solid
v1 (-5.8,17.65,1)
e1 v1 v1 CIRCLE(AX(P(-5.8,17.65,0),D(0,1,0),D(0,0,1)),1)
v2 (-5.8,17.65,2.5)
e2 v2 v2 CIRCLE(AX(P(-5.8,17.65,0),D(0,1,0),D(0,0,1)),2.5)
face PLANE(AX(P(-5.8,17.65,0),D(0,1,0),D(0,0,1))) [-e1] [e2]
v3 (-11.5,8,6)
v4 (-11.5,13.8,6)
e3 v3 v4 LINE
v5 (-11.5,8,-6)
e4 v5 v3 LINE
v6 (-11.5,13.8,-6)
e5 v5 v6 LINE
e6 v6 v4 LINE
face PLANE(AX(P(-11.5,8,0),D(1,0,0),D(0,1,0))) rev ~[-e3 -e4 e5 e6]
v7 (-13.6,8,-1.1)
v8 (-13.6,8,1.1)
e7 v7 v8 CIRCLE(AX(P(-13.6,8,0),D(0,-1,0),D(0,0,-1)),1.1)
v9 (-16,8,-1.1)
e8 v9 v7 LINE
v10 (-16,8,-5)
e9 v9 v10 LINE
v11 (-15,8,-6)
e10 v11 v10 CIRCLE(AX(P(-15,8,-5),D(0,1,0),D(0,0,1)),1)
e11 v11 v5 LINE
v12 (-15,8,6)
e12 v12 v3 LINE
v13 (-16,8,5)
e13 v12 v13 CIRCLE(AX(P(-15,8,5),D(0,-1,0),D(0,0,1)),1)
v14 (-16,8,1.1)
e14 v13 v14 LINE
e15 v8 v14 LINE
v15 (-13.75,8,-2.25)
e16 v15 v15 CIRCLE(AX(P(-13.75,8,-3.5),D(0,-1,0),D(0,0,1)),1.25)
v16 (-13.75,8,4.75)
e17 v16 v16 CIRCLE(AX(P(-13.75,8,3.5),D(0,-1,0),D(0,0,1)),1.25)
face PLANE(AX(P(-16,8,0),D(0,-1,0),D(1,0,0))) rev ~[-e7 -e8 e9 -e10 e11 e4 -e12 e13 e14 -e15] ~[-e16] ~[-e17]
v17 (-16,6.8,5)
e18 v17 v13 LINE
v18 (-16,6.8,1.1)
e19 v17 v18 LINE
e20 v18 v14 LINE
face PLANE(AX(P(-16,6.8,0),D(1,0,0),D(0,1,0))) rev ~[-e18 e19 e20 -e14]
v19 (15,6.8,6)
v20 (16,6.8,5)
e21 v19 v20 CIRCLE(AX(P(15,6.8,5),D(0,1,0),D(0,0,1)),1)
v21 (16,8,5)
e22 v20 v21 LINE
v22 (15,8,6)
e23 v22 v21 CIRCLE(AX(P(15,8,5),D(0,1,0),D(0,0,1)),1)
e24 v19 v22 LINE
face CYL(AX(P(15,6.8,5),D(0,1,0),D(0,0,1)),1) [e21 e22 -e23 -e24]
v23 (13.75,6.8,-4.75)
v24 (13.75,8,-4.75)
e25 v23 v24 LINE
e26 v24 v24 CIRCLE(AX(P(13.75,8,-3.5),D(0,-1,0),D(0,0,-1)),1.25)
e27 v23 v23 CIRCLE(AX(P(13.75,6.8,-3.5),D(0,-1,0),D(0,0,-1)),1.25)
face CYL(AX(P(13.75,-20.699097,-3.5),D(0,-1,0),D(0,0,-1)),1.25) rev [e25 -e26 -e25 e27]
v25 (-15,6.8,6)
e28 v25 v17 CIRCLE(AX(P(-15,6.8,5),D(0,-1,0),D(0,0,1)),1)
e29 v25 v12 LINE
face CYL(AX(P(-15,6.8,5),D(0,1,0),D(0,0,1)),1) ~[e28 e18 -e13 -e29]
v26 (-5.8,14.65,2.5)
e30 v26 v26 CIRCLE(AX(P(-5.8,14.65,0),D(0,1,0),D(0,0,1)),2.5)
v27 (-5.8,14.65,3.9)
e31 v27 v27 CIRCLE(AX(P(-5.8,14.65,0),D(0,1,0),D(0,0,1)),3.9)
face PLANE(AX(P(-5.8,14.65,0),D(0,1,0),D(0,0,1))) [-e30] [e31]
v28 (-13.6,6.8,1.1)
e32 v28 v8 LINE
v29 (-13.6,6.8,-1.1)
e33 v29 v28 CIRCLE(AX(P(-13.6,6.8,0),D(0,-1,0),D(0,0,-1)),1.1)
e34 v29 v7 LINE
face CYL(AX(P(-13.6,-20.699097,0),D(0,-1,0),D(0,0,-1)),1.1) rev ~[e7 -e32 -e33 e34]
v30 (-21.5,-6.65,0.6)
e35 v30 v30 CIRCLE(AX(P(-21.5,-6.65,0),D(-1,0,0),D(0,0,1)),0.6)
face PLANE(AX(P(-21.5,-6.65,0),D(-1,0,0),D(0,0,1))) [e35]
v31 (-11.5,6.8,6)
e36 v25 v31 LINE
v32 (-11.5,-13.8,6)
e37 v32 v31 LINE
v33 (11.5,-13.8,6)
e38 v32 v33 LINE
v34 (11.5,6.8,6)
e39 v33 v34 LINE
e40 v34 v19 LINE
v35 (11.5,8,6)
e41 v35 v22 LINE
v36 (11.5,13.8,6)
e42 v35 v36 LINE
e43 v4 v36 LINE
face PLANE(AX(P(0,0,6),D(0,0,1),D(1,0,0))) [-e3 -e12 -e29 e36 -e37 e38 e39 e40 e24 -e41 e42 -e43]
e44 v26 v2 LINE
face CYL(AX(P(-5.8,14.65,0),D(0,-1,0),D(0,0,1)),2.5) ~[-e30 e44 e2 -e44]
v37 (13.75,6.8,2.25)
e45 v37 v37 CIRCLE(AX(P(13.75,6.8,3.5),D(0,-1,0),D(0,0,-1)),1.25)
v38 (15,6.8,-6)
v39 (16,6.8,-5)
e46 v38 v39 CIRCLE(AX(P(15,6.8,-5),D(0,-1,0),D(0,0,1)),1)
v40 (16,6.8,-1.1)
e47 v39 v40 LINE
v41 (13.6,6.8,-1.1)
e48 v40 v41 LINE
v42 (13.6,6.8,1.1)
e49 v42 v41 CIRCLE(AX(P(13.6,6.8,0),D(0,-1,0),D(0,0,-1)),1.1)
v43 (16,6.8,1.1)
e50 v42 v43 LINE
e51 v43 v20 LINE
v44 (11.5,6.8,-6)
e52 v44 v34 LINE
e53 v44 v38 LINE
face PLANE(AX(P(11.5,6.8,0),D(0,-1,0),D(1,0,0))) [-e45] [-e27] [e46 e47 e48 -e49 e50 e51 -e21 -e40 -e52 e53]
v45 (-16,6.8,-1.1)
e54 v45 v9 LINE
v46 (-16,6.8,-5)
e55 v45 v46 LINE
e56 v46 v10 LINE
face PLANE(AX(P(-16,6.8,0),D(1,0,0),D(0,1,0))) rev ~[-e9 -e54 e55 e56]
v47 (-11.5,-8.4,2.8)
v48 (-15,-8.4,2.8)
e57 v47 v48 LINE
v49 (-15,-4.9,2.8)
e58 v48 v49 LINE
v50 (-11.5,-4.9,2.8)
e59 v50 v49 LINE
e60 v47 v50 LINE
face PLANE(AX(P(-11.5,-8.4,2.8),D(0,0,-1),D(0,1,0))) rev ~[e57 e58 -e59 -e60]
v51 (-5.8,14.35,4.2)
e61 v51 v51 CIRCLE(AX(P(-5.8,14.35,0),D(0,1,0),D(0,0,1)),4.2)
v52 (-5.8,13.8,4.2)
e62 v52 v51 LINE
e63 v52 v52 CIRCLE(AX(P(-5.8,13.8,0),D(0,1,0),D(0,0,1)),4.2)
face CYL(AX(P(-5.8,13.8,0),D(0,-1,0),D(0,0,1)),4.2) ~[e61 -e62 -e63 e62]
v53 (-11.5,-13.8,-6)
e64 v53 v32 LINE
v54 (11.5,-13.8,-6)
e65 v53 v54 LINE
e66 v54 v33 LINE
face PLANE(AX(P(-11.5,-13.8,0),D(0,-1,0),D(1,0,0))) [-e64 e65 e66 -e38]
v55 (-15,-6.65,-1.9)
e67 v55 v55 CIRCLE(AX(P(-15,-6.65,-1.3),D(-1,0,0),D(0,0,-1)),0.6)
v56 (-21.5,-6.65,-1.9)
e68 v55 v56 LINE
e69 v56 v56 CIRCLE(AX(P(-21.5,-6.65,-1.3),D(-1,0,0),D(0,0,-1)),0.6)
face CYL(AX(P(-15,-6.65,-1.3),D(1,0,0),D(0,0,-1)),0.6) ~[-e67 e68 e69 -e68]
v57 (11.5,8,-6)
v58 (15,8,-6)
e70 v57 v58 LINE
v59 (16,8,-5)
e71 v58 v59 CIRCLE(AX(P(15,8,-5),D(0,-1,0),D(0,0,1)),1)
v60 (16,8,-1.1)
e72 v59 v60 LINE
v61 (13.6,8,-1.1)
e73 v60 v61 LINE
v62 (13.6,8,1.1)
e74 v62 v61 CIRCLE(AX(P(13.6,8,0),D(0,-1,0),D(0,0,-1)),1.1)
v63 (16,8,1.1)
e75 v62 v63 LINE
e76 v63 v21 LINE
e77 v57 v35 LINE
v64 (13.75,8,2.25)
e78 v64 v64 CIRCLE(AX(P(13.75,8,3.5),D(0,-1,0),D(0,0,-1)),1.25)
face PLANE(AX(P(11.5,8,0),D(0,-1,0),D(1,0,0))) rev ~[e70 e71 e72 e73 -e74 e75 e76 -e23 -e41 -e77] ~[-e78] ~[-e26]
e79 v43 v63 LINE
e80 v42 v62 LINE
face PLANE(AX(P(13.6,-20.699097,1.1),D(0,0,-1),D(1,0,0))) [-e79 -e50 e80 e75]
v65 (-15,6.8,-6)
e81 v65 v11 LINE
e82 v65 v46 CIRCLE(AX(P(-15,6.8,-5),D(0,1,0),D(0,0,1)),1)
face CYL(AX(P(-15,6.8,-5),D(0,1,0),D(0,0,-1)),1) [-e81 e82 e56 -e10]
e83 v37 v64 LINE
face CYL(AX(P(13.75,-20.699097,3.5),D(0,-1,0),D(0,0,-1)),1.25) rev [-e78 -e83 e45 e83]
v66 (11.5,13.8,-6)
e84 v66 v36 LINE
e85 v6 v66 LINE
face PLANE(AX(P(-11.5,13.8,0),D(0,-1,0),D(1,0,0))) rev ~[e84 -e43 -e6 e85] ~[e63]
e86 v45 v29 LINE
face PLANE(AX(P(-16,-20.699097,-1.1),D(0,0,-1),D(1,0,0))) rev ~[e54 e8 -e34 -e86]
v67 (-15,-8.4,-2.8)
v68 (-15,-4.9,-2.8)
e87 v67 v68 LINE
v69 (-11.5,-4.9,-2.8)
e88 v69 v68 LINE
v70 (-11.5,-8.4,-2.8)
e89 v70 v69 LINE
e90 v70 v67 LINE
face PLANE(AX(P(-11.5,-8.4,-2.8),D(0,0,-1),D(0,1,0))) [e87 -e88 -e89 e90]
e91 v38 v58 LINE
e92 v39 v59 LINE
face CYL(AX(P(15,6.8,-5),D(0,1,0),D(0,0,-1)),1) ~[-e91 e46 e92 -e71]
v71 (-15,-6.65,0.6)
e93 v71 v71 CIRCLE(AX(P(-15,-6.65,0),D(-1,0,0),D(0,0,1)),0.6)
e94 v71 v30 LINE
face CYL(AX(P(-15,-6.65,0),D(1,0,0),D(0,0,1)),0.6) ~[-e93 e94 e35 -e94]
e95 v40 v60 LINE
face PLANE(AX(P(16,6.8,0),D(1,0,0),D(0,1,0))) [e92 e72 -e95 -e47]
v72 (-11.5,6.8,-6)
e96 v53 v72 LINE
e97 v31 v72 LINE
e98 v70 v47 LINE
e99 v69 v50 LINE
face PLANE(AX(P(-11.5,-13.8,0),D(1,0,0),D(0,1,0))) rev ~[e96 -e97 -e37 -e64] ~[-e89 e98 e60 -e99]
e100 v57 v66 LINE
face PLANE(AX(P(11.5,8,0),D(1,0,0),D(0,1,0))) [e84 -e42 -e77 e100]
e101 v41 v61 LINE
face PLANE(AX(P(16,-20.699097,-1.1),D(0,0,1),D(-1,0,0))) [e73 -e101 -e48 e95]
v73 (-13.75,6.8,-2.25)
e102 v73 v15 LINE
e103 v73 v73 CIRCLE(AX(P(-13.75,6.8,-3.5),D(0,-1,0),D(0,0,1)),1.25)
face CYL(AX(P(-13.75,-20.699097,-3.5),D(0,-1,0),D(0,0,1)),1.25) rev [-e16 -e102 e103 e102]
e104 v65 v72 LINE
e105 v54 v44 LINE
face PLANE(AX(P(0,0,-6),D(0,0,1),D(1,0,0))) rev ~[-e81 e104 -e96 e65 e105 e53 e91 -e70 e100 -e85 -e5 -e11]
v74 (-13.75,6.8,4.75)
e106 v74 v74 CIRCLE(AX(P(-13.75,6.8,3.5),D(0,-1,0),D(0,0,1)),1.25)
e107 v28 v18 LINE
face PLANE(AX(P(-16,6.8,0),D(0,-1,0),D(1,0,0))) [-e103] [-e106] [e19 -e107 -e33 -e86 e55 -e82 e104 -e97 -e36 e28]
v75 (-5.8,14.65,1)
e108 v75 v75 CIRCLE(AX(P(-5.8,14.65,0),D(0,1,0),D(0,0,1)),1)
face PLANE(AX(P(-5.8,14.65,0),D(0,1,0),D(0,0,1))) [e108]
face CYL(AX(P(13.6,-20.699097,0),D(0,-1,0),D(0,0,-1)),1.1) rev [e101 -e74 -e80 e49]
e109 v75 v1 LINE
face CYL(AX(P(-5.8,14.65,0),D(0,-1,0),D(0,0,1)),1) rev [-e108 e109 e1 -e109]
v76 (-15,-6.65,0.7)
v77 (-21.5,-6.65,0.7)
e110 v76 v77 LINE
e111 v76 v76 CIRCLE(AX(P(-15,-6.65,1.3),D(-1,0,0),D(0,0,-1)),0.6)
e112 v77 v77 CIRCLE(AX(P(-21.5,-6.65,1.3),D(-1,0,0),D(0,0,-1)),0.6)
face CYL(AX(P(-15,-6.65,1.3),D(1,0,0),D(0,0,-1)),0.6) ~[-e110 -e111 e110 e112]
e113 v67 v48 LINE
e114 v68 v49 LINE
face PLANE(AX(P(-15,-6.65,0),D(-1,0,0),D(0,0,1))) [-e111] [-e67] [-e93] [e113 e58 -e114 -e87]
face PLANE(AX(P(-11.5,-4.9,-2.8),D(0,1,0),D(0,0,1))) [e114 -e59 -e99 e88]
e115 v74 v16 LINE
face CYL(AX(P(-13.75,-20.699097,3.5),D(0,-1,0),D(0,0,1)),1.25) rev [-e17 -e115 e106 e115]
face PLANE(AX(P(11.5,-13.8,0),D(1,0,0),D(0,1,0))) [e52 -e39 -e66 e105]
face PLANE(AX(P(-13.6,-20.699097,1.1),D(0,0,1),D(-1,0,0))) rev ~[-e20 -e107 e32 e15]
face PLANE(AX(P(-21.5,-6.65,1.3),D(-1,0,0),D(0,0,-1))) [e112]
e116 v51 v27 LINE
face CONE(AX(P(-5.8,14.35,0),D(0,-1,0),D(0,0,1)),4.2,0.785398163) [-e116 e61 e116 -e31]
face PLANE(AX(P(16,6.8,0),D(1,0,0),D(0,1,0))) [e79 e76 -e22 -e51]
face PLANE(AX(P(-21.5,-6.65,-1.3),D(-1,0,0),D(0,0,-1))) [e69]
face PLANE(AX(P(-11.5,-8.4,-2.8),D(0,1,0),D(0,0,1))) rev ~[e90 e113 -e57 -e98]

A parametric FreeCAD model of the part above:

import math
import FreeCAD as App
import Part
import Sketcher
from FreeCAD import Vector


def edges_at(feature, points):
    """Names of the edges that pass closest to the given points."""
    edges = feature.Shape.Edges
    near = lambda p: min(range(len(edges)), key=lambda i: edges[i].distToShape(Part.Vertex(*p))[0])
    return sorted({f"Edge{near(p) + 1}" for p in points})


def add_polygon(sketch, points):
    """Adds a closed chain of lines whose ends are joined by coincident constraints."""
    first, n = sketch.GeometryCount, len(points)
    for a, b in zip(points, points[1:] + points[:1]):
        sketch.addGeometry(Part.LineSegment(App.Vector(*a, 0), App.Vector(*b, 0)), False)
    for i in range(n):
        sketch.addConstraint(Sketcher.Constraint("Coincident", first + i, 2, first + (i + 1) % n, 1))

doc = App.newDocument("Part")
body = doc.addObject("PartDesign::Body", "Body")

sketch1 = body.newObject("Sketcher::SketchObject", "Sketch")
sketch1.AttachmentSupport = (doc.getObject("XY_Plane"), [""])
sketch1.MapMode = "FlatFace"
add_polygon(sketch1, [(-11.5, 6.8), (-11.5, -13.8), (11.5, -13.8), (11.5, 6.8), (16, 6.8), (16, 8), (11.5, 8), (11.5, 13.8), (-11.5, 13.8), (-11.5, 8), (-16, 8), (-16, 6.8)])
sketch1.addConstraint([
    Sketcher.Constraint("Vertical", 0),
    Sketcher.Constraint("Horizontal", 1),
    Sketcher.Constraint("Vertical", 2),
    Sketcher.Constraint("Horizontal", 3),
    Sketcher.Constraint("Vertical", 4),
    Sketcher.Constraint("Horizontal", 5),
    Sketcher.Constraint("Vertical", 6),
    Sketcher.Constraint("Horizontal", 7),
    Sketcher.Constraint("Vertical", 8),
    Sketcher.Constraint("Horizontal", 9),
    Sketcher.Constraint("Vertical", 10),
    Sketcher.Constraint("Horizontal", 11),
    Sketcher.Constraint("Symmetric", 0, 2, 6, 2, -1, 1),
    Sketcher.Constraint("Symmetric", 5, 2, 8, 2, -2),
    Sketcher.Constraint("Symmetric", 3, 2, 10, 2, -2),
    Sketcher.Constraint("Vertical", 2, 2, 5, 2),
    Sketcher.Constraint("DistanceX", 1, 1, 1, 2, 23.0),
    Sketcher.Constraint("DistanceX", 3, 1, 3, 2, 4.5),
    Sketcher.Constraint("DistanceY", 0, 2, 0, 1, 20.6),
    Sketcher.Constraint("DistanceY", 4, 1, 4, 2, 1.2),
    Sketcher.Constraint("DistanceY", 6, 1, 6, 2, 5.8),
])
pad1 = body.newObject("PartDesign::Pad", "Pad")
pad1.Profile = sketch1
pad1.Length = 12
pad1.Midplane = True

sketch2 = body.newObject("Sketcher::SketchObject", "Sketch001")
sketch2.AttachmentSupport = (doc.getObject("XZ_Plane"), [""])
sketch2.MapMode = "FlatFace"
sketch2.AttachmentOffset = App.Placement(Vector(0, 0, -13.8), App.Rotation())
sketch2.addGeometry(Part.Circle(Vector(-5.8, 0, 0), Vector(0, 0, 1), 4.2), False)
sketch2.addConstraint([
    Sketcher.Constraint("PointOnObject", 0, 3, -1),
    Sketcher.Constraint("Diameter", 0, 8.4),
    Sketcher.Constraint("DistanceX", 0, 3, -1, 1, 5.8),
])
pad2 = body.newObject("PartDesign::Pad", "Pad001")
pad2.Profile = sketch2
pad2.Length = 0.85
pad2.Reversed = True
doc.recompute()

chamfer = body.newObject("PartDesign::Chamfer", "Chamfer")
chamfer.Base = (pad2, edges_at(pad2, [(-5.8, 14.65, -4.2)]))
chamfer.Size = 0.3

sketch3 = body.newObject("Sketcher::SketchObject", "Sketch002")
sketch3.AttachmentSupport = (doc.getObject("XZ_Plane"), [""])
sketch3.MapMode = "FlatFace"
sketch3.AttachmentOffset = App.Placement(Vector(0, 0, -14.65), App.Rotation())
sketch3.addGeometry([
    Part.Circle(Vector(-5.8, 0, 0), Vector(0, 0, 1), 2.5),
    Part.Circle(Vector(-5.8, 0, 0), Vector(0, 0, 1), 1),
], False)
sketch3.addConstraint([
    Sketcher.Constraint("Coincident", 1, 3, 0, 3),
    Sketcher.Constraint("PointOnObject", 0, 3, -1),
    Sketcher.Constraint("Diameter", 0, 5.0),
    Sketcher.Constraint("Diameter", 1, 2.0),
    Sketcher.Constraint("DistanceX", 0, 3, -1, 1, 5.8),
])
pad3 = body.newObject("PartDesign::Pad", "Pad002")
pad3.Profile = sketch3
pad3.Length = 3
pad3.Reversed = True

sketch4 = body.newObject("Sketcher::SketchObject", "Sketch003")
sketch4.AttachmentSupport = (doc.getObject("XZ_Plane"), [""])
sketch4.MapMode = "FlatFace"
sketch4.AttachmentOffset = App.Placement(Vector(0, 0, -8), App.Rotation())
sketch4.addGeometry([
    Part.Circle(Vector(-13.8, -3.5, 0), Vector(0, 0, 1), 1.2),
    Part.Circle(Vector(-13.8, 3.5, 0), Vector(0, 0, 1), 1.2),
    Part.Circle(Vector(13.8, 3.5, 0), Vector(0, 0, 1), 1.2),
    Part.Circle(Vector(13.8, -3.5, 0), Vector(0, 0, 1), 1.2),
    Part.LineSegment(Vector(-13.6, -1.1, 0), Vector(-16, -1.1, 0)),
    Part.LineSegment(Vector(-16, -1.1, 0), Vector(-16, 1.1, 0)),
    Part.LineSegment(Vector(-16, 1.1, 0), Vector(-13.6, 1.1, 0)),
    Part.ArcOfCircle(Part.Circle(Vector(-13.6, 0, 0), Vector(0, 0, 1), 1.1), math.radians(-90), math.radians(90)),
    Part.LineSegment(Vector(16, -1.1, 0), Vector(13.6, -1.1, 0)),
    Part.ArcOfCircle(Part.Circle(Vector(13.6, 0, 0), Vector(0, 0, 1), 1.1), math.radians(90), math.radians(270)),
    Part.LineSegment(Vector(13.6, 1.1, 0), Vector(16, 1.1, 0)),
    Part.LineSegment(Vector(16, 1.1, 0), Vector(16, -1.1, 0)),
], False)
sketch4.addConstraint([
    Sketcher.Constraint("Coincident", 4, 2, 5, 1),
    Sketcher.Constraint("Coincident", 5, 2, 6, 1),
    Sketcher.Constraint("Tangent", 6, 2, 7, 2),
    Sketcher.Constraint("Tangent", 7, 1, 4, 1),
    Sketcher.Constraint("Tangent", 8, 2, 9, 2),
    Sketcher.Constraint("Tangent", 9, 1, 10, 1),
    Sketcher.Constraint("Coincident", 10, 2, 11, 1),
    Sketcher.Constraint("Coincident", 11, 2, 8, 1),
    Sketcher.Constraint("Horizontal", 4),
    Sketcher.Constraint("Vertical", 5),
    Sketcher.Constraint("Horizontal", 6),
    Sketcher.Constraint("Horizontal", 8),
    Sketcher.Constraint("Horizontal", 10),
    Sketcher.Constraint("Vertical", 11),
    Sketcher.Constraint("Equal", 0, 1),
    Sketcher.Constraint("Equal", 1, 2),
    Sketcher.Constraint("Equal", 2, 3),
    Sketcher.Constraint("Equal", 7, 9),
    Sketcher.Constraint("Symmetric", 0, 3, 2, 3, -1, 1),
    Sketcher.Constraint("Symmetric", 1, 3, 3, 3, -1, 1),
    Sketcher.Constraint("Symmetric", 7, 3, 9, 3, -1, 1),
    Sketcher.Constraint("Symmetric", 1, 3, 2, 3, -2),
    Sketcher.Constraint("Symmetric", 5, 2, 10, 2, -2),
    Sketcher.Constraint("Diameter", 0, 2.5),
    Sketcher.Constraint("Radius", 7, 1.1),
    Sketcher.Constraint("DistanceX", 4, 2, 4, 1, 2.4),
    Sketcher.Constraint("DistanceX", 4, 2, -1, 1, 16.0),
    Sketcher.Constraint("DistanceY", 0, 3, 1, 3, 7.0),
    Sketcher.Constraint("DistanceX", 1, 3, 2, 3, 27.5),
])
pocket1 = body.newObject("PartDesign::Pocket", "Pocket")
pocket1.Profile = sketch4
pocket1.Type = "ThroughAll"
pocket1.Midplane = True
doc.recompute()

fillet = body.newObject("PartDesign::Fillet", "Fillet")
fillet.Base = (pocket1, edges_at(pocket1, [
    (-16, 7.4, -6),
    (16, 7.4, -6),
    (16, 7.4, 6),
    (-16, 7.4, 6),
]))
fillet.Radius = 1

sketch5 = body.newObject("Sketcher::SketchObject", "Sketch004")
sketch5.AttachmentSupport = (doc.getObject("YZ_Plane"), [""])
sketch5.MapMode = "FlatFace"
sketch5.AttachmentOffset = App.Placement(Vector(0, 0, -11.5), App.Rotation())
add_polygon(sketch5, [(-4.9, -2.8), (-8.4, -2.8), (-8.4, 2.8), (-4.9, 2.8)])
sketch5.addConstraint([
    Sketcher.Constraint("Horizontal", 0),
    Sketcher.Constraint("Vertical", 1),
    Sketcher.Constraint("Horizontal", 2),
    Sketcher.Constraint("Vertical", 3),
    Sketcher.Constraint("DistanceX", 0, 2, 0, 1, 3.5),
    Sketcher.Constraint("DistanceY", 1, 1, 1, 2, 5.6),
    Sketcher.Constraint("DistanceX", 0, 2, -1, 1, 8.4),
    Sketcher.Constraint("DistanceY", 0, 2, -1, 1, 2.8),
])
pad4 = body.newObject("PartDesign::Pad", "Pad003")
pad4.Profile = sketch5
pad4.Length = 3.5
pad4.Reversed = True

sketch6 = body.newObject("Sketcher::SketchObject", "Sketch005")
sketch6.AttachmentSupport = (doc.getObject("YZ_Plane"), [""])
sketch6.MapMode = "FlatFace"
sketch6.AttachmentOffset = App.Placement(Vector(0, 0, -15), App.Rotation())
sketch6.addGeometry([
    Part.Circle(Vector(-6.7, 0, 0), Vector(0, 0, 1), 0.6),
    Part.Circle(Vector(-6.7, 1.3, 0), Vector(0, 0, 1), 0.6),
    Part.Circle(Vector(-6.7, -1.3, 0), Vector(0, 0, 1), 0.6),
], False)
sketch6.addConstraint([
    Sketcher.Constraint("Equal", 0, 1),
    Sketcher.Constraint("Equal", 1, 2),
    Sketcher.Constraint("Symmetric", 1, 3, 2, 3, -1),
    Sketcher.Constraint("PointOnObject", 0, 3, -1),
    Sketcher.Constraint("Vertical", 0, 3, 1, 3),
    Sketcher.Constraint("Diameter", 0, 1.2),
    Sketcher.Constraint("DistanceY", -1, 1, 1, 3, 1.3),
    Sketcher.Constraint("DistanceX", 0, 3, -1, 1, 6.65),
])
pad5 = body.newObject("PartDesign::Pad", "Pad004")
pad5.Profile = sketch6
pad5.Length = 6.5
pad5.Reversed = True

doc.recompute()
